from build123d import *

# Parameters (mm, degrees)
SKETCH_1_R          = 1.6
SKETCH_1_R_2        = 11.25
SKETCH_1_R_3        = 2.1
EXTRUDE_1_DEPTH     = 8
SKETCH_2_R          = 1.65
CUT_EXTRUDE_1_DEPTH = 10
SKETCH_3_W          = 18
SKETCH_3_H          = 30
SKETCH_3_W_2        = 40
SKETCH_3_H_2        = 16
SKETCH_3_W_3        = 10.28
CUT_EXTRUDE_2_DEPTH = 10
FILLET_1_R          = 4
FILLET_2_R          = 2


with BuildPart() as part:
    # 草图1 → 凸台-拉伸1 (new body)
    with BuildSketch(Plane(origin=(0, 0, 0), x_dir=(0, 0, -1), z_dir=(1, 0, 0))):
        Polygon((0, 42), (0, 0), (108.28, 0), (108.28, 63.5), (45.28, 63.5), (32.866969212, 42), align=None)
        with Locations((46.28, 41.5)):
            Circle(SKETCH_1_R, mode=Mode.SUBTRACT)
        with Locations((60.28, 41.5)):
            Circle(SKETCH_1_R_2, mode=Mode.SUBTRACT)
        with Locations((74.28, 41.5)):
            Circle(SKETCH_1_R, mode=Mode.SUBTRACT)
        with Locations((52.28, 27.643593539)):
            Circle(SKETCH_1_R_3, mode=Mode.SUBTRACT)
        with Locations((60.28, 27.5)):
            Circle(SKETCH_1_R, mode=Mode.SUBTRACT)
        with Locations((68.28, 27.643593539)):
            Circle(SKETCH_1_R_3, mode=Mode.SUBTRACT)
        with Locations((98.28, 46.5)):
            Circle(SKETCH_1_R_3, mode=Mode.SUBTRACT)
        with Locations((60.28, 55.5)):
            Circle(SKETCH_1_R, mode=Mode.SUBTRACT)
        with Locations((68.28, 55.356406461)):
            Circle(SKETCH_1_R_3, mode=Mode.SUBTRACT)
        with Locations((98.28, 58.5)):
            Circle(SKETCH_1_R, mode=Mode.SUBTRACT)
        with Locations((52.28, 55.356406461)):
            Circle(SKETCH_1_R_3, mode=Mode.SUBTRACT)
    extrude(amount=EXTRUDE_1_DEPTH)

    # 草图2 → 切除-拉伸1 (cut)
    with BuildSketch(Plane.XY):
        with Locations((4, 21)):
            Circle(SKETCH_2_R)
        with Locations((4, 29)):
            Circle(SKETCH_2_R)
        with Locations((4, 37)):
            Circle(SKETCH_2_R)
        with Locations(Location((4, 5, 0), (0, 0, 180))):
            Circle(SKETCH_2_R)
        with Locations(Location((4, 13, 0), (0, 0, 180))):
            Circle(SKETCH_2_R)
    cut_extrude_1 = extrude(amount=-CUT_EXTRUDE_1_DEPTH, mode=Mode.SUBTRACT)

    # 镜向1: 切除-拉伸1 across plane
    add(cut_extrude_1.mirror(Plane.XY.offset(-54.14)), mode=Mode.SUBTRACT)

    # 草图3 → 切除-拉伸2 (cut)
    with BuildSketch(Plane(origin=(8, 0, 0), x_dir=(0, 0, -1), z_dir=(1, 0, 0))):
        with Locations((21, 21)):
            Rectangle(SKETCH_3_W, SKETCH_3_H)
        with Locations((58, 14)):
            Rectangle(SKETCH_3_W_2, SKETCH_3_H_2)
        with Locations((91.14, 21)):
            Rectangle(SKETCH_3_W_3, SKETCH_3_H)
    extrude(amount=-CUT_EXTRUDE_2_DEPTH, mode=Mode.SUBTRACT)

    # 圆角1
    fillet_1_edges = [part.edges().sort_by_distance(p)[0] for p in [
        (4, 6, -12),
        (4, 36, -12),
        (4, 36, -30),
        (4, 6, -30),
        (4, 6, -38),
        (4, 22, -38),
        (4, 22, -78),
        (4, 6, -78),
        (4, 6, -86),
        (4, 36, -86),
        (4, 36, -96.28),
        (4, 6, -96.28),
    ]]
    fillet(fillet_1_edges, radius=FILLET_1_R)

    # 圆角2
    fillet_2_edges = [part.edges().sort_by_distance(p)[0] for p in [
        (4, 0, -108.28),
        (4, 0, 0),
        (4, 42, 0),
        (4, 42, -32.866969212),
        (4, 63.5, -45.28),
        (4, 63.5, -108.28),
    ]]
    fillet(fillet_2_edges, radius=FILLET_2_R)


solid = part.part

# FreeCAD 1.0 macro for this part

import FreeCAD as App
import Part
import Sketcher

V = App.Vector
Q = App.Units.Quantity


def edges_at(feature, points):
    """Names of the edges that pass closest to the given points."""
    edges = feature.Shape.Edges
    near = lambda p: min(range(len(edges)), key=lambda i: edges[i].distToShape(Part.Vertex(*p))[0])
    return sorted({f"Edge{near(p) + 1}" for p in points})


def add_polygon(sketch, points):
    """Adds a closed chain of lines whose ends are joined by coincident constraints."""
    first, n = sketch.GeometryCount, len(points)
    for a, b in zip(points, points[1:] + points[:1]):
        sketch.addGeometry(Part.LineSegment(App.Vector(*a, 0), App.Vector(*b, 0)), False)
    for i in range(n):
        sketch.addConstraint(Sketcher.Constraint("Coincident", first + i, 2, first + (i + 1) % n, 1))

doc = App.newDocument("Part")
params = doc.addObject("Spreadsheet::Sheet", "Params")
for row, (alias, value) in enumerate([
    ("sketch1_diameter", "4.2 mm"),
    ("sketch1_diameter2", "3.2 mm"),
    ("sketch1_diameter3", "22.5 mm"),
    ("sketch1_width", "42 mm"),
    ("sketch1_height", "63 mm"),
    ("pad1_length", "8 mm"),
    ("sketch2_diameter", "3.3 mm"),
    ("pocket1_length", "10 mm"),
    ("sketch3_width", "30 mm"),
    ("sketch3_width2", "16 mm"),
    ("sketch3_height", "18 mm"),
    ("sketch3_height2", "40 mm"),
    ("sketch3_height3", "10.28 mm"),
    ("pocket2_length", "10 mm"),
    ("fillet_radius", "4 mm"),
    ("fillet2_radius", "2 mm"),
], start=1):
    params.set(f"A{row}", alias)
    params.set(f"B{row}", "=" + value)
    params.setAlias(f"B{row}", alias)

body = doc.addObject("PartDesign::Body", "Body")

sketch1 = body.newObject("Sketcher::SketchObject", "Sketch")
sketch1.AttachmentSupport = (doc.getObject("YZ_Plane"), [""])
sketch1.MapMode = "FlatFace"
add_polygon(sketch1, [(42, 0), (0, 0), (0, -108.28), (63.5, -108.28), (63.5, -45.28), (42, -32.866969)])
sketch1.addGeometry(Part.Circle(V(27.643594, -52.28, 0), V(0, 0, 1), 2.1), False)
sketch1.addGeometry(Part.Circle(V(27.5, -60.28, 0), V(0, 0, 1), 1.6), False)
sketch1.addGeometry(Part.Circle(V(27.643594, -68.28, 0), V(0, 0, 1), 2.1), False)
sketch1.addGeometry(Part.Circle(V(41.5, -46.28, 0), V(0, 0, 1), 1.6), False)
sketch1.addGeometry(Part.Circle(V(41.5, -60.28, 0), V(0, 0, 1), 11.25), False)
sketch1.addGeometry(Part.Circle(V(41.5, -74.28, 0), V(0, 0, 1), 1.6), False)
sketch1.addGeometry(Part.Circle(V(55.356406, -52.28, 0), V(0, 0, 1), 2.1), False)
sketch1.addGeometry(Part.Circle(V(55.5, -60.28, 0), V(0, 0, 1), 1.6), False)
sketch1.addGeometry(Part.Circle(V(55.356406, -68.28, 0), V(0, 0, 1), 2.1), False)
sketch1.addGeometry(Part.Circle(V(46.5, -98.28, 0), V(0, 0, 1), 2.1), False)
sketch1.addGeometry(Part.Circle(V(58.5, -98.28, 0), V(0, 0, 1), 1.6), False)
sketch1.addConstraint(Sketcher.Constraint("Horizontal", 0))
sketch1.addConstraint(Sketcher.Constraint("Vertical", 1))
sketch1.addConstraint(Sketcher.Constraint("Horizontal", 2))
sketch1.addConstraint(Sketcher.Constraint("Vertical", 3))
sketch1.addConstraint(Sketcher.Constraint("Vertical", 5))
sketch1.addConstraint(Sketcher.Constraint("Coincident", 0, 2, -1, 1))
sketch1.addConstraint(Sketcher.Constraint("Equal", 6, 8))
sketch1.addConstraint(Sketcher.Constraint("Equal", 7, 9))
sketch1.addConstraint(Sketcher.Constraint("Equal", 9, 11))
sketch1.addConstraint(Sketcher.Constraint("Equal", 8, 12))
sketch1.addConstraint(Sketcher.Constraint("Equal", 11, 13))
sketch1.addConstraint(Sketcher.Constraint("Equal", 12, 14))
sketch1.addConstraint(Sketcher.Constraint("Equal", 14, 15))
sketch1.addConstraint(Sketcher.Constraint("Equal", 13, 16))
sketch1.addConstraint(Sketcher.Constraint("Horizontal", 7, 3, 10, 3))
sketch1.addConstraint(Sketcher.Constraint("Horizontal", 6, 3, 12, 3))
sketch1.addConstraint(Sketcher.Constraint("Horizontal", 10, 3, 13, 3))
sketch1.addConstraint(Sketcher.Constraint("Horizontal", 8, 3, 14, 3))
sketch1.addConstraint(Sketcher.Constraint("Horizontal", 15, 3, 16, 3))
sketch1.addConstraint(Sketcher.Constraint("Vertical", 6, 3, 8, 3))
sketch1.addConstraint(Sketcher.Constraint("Vertical", 9, 3, 10, 3))
sketch1.addConstraint(Sketcher.Constraint("Vertical", 10, 3, 11, 3))
sketch1.addConstraint(Sketcher.Constraint("Vertical", 12, 3, 14, 3))
sketch1.addConstraint(Sketcher.Constraint("Diameter", 6, 4.2))
sketch1.addConstraint(Sketcher.Constraint("Diameter", 7, 3.2))
sketch1.addConstraint(Sketcher.Constraint("Diameter", 10, 22.5))
sketch1.addConstraint(Sketcher.Constraint("DistanceX", 0, 2, 0, 1, 42.0))
sketch1.addConstraint(Sketcher.Constraint("DistanceY", 3, 1, 3, 2, 63.0))
sketch1.addConstraint(Sketcher.Constraint("Angle", 4, Q("150 deg")))
sketch1.addConstraint(Sketcher.Constraint("DistanceX", 2, 1, 2, 2, 63.5))
sketch1.addConstraint(Sketcher.Constraint("DistanceY", 7, 3, 6, 3, 8.0))
sketch1.addConstraint(Sketcher.Constraint("DistanceY", 8, 3, 7, 3, 8.0))
sketch1.addConstraint(Sketcher.Constraint("DistanceY", 6, 3, 9, 3, 6.0))
sketch1.addConstraint(Sketcher.Constraint("DistanceX", 7, 3, 9, 3, 14.0))
sketch1.addConstraint(Sketcher.Constraint("DistanceY", 11, 3, 10, 3, 14.0))
sketch1.addConstraint(Sketcher.Constraint("DistanceX", 10, 3, 13, 3, 14.0))
sketch1.addConstraint(Sketcher.Constraint("DistanceX", 11, 3, 15, 3, 5.0))
sketch1.addConstraint(Sketcher.Constraint("DistanceY", 15, 3, 11, 3, 24.0))
sketch1.addConstraint(Sketcher.Constraint("DistanceX", 15, 3, 16, 3, 12.0))
sketch1.addConstraint(Sketcher.Constraint("DistanceY", 1, 2, 15, 3, 10.0))
sketch1.addConstraint(Sketcher.Constraint("DistanceX", 16, 3, 2, 2, 5.0))
sketch1.addConstraint(Sketcher.Constraint("DistanceY", 1, 2, 1, 1, 108.28))
sketch1.addConstraint(Sketcher.Constraint("DistanceX", -1, 1, 6, 3, 27.643594))
sketch1.addConstraint(Sketcher.Constraint("DistanceX", -1, 1, 12, 3, 55.356406))
sketch1.setExpression("Constraints[29]", "Params.sketch1_diameter")
sketch1.setExpression("Constraints[30]", "Params.sketch1_diameter2")
sketch1.setExpression("Constraints[31]", "Params.sketch1_diameter3")
sketch1.setExpression("Constraints[32]", "Params.sketch1_width")
sketch1.setExpression("Constraints[33]", "Params.sketch1_height")
pad1 = body.newObject("PartDesign::Pad", "Pad")
pad1.Profile = sketch1
pad1.setExpression("Length", "Params.pad1_length")

sketch2 = body.newObject("Sketcher::SketchObject", "Sketch001")
sketch2.AttachmentSupport = (doc.getObject("XY_Plane"), [""])
sketch2.MapMode = "FlatFace"
sketch2.addGeometry(Part.Circle(V(4, 21, 0), V(0, 0, 1), 1.65), False)
sketch2.addGeometry(Part.Circle(V(4, 29, 0), V(0, 0, 1), 1.65), False)
sketch2.addGeometry(Part.Circle(V(4, 37, 0), V(0, 0, 1), 1.65), False)
sketch2.addGeometry(Part.Circle(V(4, 5, 0), V(0, 0, 1), 1.65), False)
sketch2.addGeometry(Part.Circle(V(4, 13, 0), V(0, 0, 1), 1.65), False)
sketch2.addConstraint(Sketcher.Constraint("Equal", 0, 1))
sketch2.addConstraint(Sketcher.Constraint("Equal", 1, 2))
sketch2.addConstraint(Sketcher.Constraint("Equal", 2, 3))
sketch2.addConstraint(Sketcher.Constraint("Equal", 3, 4))
sketch2.addConstraint(Sketcher.Constraint("Vertical", 0, 3, 1, 3))
sketch2.addConstraint(Sketcher.Constraint("Vertical", 1, 3, 2, 3))
sketch2.addConstraint(Sketcher.Constraint("Vertical", 2, 3, 3, 3))
sketch2.addConstraint(Sketcher.Constraint("Vertical", 3, 3, 4, 3))
sketch2.addConstraint(Sketcher.Constraint("Diameter", 0, 3.3))
sketch2.addConstraint(Sketcher.Constraint("DistanceX", -1, 1, 0, 3, 4.0))
sketch2.addConstraint(Sketcher.Constraint("DistanceY", -1, 1, 0, 3, 21.0))
sketch2.addConstraint(Sketcher.Constraint("DistanceY", -1, 1, 1, 3, 29.0))
sketch2.addConstraint(Sketcher.Constraint("DistanceY", -1, 1, 2, 3, 37.0))
sketch2.addConstraint(Sketcher.Constraint("DistanceY", -1, 1, 3, 3, 5.0))
sketch2.addConstraint(Sketcher.Constraint("DistanceY", -1, 1, 4, 3, 13.0))
sketch2.setExpression("Constraints[8]", "Params.sketch2_diameter")
pocket1 = body.newObject("PartDesign::Pocket", "Pocket")
pocket1.Profile = sketch2
pocket1.setExpression("Length", "Params.pocket1_length")
doc.recompute()

datumplane = body.newObject("PartDesign::Plane", "DatumPlane")
datumplane.AttachmentSupport = (doc.getObject("XY_Plane"), [""])
datumplane.MapMode = "FlatFace"
datumplane.AttachmentOffset = App.Placement(V(0, 0, -54.14), App.Rotation())
mirrored = body.newObject("PartDesign::Mirrored", "Mirrored")
mirrored.Originals = [pocket1]
mirrored.MirrorPlane = (datumplane, [""])
body.Tip = mirrored

sketch3 = body.newObject("Sketcher::SketchObject", "Sketch002")
sketch3.AttachmentSupport = (doc.getObject("YZ_Plane"), [""])
sketch3.MapMode = "FlatFace"
sketch3.AttachmentOffset = App.Placement(V(0, 0, 8), App.Rotation())
add_polygon(sketch3, [(36, -12), (6, -12), (6, -30), (36, -30)])
add_polygon(sketch3, [(22, -38), (6, -38), (6, -78), (22, -78)])
add_polygon(sketch3, [(36, -86), (6, -86), (6, -96.28), (36, -96.28)])
sketch3.addConstraint(Sketcher.Constraint("Horizontal", 0))
sketch3.addConstraint(Sketcher.Constraint("Vertical", 1))
sketch3.addConstraint(Sketcher.Constraint("Horizontal", 2))
sketch3.addConstraint(Sketcher.Constraint("Vertical", 3))
sketch3.addConstraint(Sketcher.Constraint("Horizontal", 4))
sketch3.addConstraint(Sketcher.Constraint("Vertical", 5))
sketch3.addConstraint(Sketcher.Constraint("Horizontal", 6))
sketch3.addConstraint(Sketcher.Constraint("Vertical", 7))
sketch3.addConstraint(Sketcher.Constraint("Horizontal", 8))
sketch3.addConstraint(Sketcher.Constraint("Vertical", 9))
sketch3.addConstraint(Sketcher.Constraint("Horizontal", 10))
sketch3.addConstraint(Sketcher.Constraint("Vertical", 11))
sketch3.addConstraint(Sketcher.Constraint("Vertical", 1, 2, 4, 2))
sketch3.addConstraint(Sketcher.Constraint("Vertical", 5, 2, 8, 2))
sketch3.addConstraint(Sketcher.Constraint("Vertical", 3, 2, 10, 2))
sketch3.addConstraint(Sketcher.Constraint("DistanceX", 0, 2, 0, 1, 30.0))
sketch3.addConstraint(Sketcher.Constraint("DistanceX", 4, 2, 4, 1, 16.0))
sketch3.addConstraint(Sketcher.Constraint("DistanceY", 1, 2, 1, 1, 18.0))
sketch3.addConstraint(Sketcher.Constraint("DistanceY", 5, 2, 5, 1, 40.0))
sketch3.addConstraint(Sketcher.Constraint("DistanceX", -1, 1, 0, 2, 6.0))
sketch3.addConstraint(Sketcher.Constraint("DistanceY", 0, 2, -1, 1, 12.0))
sketch3.addConstraint(Sketcher.Constraint("DistanceY", 4, 2, -1, 1, 38.0))
sketch3.addConstraint(Sketcher.Constraint("DistanceY", 8, 2, -1, 1, 86.0))
sketch3.addConstraint(Sketcher.Constraint("DistanceY", 9, 2, 9, 1, 10.28))
sketch3.setExpression("Constraints[27]", "Params.sketch3_width")
sketch3.setExpression("Constraints[28]", "Params.sketch3_width2")
sketch3.setExpression("Constraints[29]", "Params.sketch3_height")
sketch3.setExpression("Constraints[30]", "Params.sketch3_height2")
sketch3.setExpression("Constraints[35]", "Params.sketch3_height3")
pocket2 = body.newObject("PartDesign::Pocket", "Pocket001")
pocket2.Profile = sketch3
pocket2.setExpression("Length", "Params.pocket2_length")
doc.recompute()

fillet = body.newObject("PartDesign::Fillet", "Fillet")
fillet.Base = (pocket2, edges_at(pocket2, [
    (4, 6, -12),
    (4, 36, -12),
    (4, 36, -30),
    (4, 6, -30),
    (4, 6, -38),
    (4, 22, -38),
    (4, 22, -78),
    (4, 6, -78),
    (4, 6, -86),
    (4, 36, -86),
    (4, 36, -96.28),
    (4, 6, -96.28),
]))
fillet.setExpression("Radius", "Params.fillet_radius")
doc.recompute()

fillet2 = body.newObject("PartDesign::Fillet", "Fillet001")
fillet2.Base = (fillet, edges_at(fillet, [
    (4, 0, -108.28),
    (4, 0, 0),
    (4, 42, 0),
    (4, 42, -32.867),
    (4, 63.5, -45.28),
    (4, 63.5, -108.28),
]))
fillet2.setExpression("Radius", "Params.fillet2_radius")

doc.recompute()
